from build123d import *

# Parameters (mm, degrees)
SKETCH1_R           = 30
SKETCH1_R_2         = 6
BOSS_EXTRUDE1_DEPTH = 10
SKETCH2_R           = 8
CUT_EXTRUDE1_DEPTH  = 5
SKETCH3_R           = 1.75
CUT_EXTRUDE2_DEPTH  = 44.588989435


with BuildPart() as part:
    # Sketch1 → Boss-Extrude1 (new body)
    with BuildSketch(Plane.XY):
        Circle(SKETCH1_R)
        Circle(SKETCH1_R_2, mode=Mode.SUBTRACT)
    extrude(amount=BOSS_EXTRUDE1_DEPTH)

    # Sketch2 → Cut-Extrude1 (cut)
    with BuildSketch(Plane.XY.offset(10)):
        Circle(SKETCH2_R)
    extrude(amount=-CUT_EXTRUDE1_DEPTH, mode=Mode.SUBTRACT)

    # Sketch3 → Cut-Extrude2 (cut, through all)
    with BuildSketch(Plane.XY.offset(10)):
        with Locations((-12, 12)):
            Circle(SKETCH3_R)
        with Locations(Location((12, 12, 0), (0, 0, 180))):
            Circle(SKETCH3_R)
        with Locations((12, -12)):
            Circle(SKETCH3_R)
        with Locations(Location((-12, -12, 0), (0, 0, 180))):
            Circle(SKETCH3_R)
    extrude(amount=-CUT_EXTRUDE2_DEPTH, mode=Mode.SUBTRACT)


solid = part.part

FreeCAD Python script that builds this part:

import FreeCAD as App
import Part
import Sketcher

V = App.Vector
Q = App.Units.Quantity

doc = App.newDocument("Part")
body = doc.addObject("PartDesign::Body", "Body")

# Sketch on XY plane
sketch1 = body.newObject("Sketcher::SketchObject", "Sketch")
sketch1.AttachmentSupport = (doc.getObject("XY_Plane"), [""])
sketch1.MapMode = "FlatFace"
sketch1.addGeometry([
    Part.Circle(V(0, 0, 0), V(0, 0, 1), 30),
    Part.Circle(V(0, 0, 0), V(0, 0, 1), 6),
], False)
sketch1.addConstraint([
    Sketcher.Constraint("Coincident", 0, 3, -1, 1),
    Sketcher.Constraint("Coincident", 1, 3, -1, 1),
    Sketcher.Constraint("Diameter", 0, Q("60 mm")),
    Sketcher.Constraint("Diameter", 1, Q("12 mm")),
])
pad1 = body.newObject("PartDesign::Pad", "Pad")
pad1.Profile = sketch1
pad1.Length = 10

# Sketch on XY plane
sketch2 = body.newObject("Sketcher::SketchObject", "Sketch001")
sketch2.AttachmentSupport = (doc.getObject("XY_Plane"), [""])
sketch2.MapMode = "FlatFace"
sketch2.AttachmentOffset = App.Placement(V(0, 0, 10), App.Rotation())
sketch2.addGeometry(Part.Circle(V(0, 0, 0), V(0, 0, 1), 8), False)
sketch2.addConstraint([
    Sketcher.Constraint("Coincident", 0, 3, -1, 1),
    Sketcher.Constraint("Diameter", 0, Q("16 mm")),
])
pocket1 = body.newObject("PartDesign::Pocket", "Pocket")
pocket1.Profile = sketch2
pocket1.Length = 5

# Sketch on XY plane
sketch3 = body.newObject("Sketcher::SketchObject", "Sketch002")
sketch3.AttachmentSupport = (doc.getObject("XY_Plane"), [""])
sketch3.MapMode = "FlatFace"
sketch3.AttachmentOffset = App.Placement(V(0, 0, 10), App.Rotation())
sketch3.addGeometry([
    Part.Circle(V(-12, 12, 0), V(0, 0, 1), 1.8),
    Part.Circle(V(12, 12, 0), V(0, 0, 1), 1.8),
    Part.Circle(V(12, -12, 0), V(0, 0, 1), 1.8),
    Part.Circle(V(-12, -12, 0), V(0, 0, 1), 1.8),
], False)
sketch3.addConstraint([
    Sketcher.Constraint("Equal", 0, 1),
    Sketcher.Constraint("Equal", 1, 2),
    Sketcher.Constraint("Equal", 2, 3),
    Sketcher.Constraint("Symmetric", 0, 3, 2, 3, -1, 1),
    Sketcher.Constraint("Symmetric", 1, 3, 3, 3, -1, 1),
    Sketcher.Constraint("Symmetric", 0, 3, 1, 3, -2),
    Sketcher.Constraint("Diameter", 0, Q("3.5 mm")),
    Sketcher.Constraint("DistanceX", 0, 3, -1, 1, Q("12 mm")),
    Sketcher.Constraint("DistanceY", -1, 1, 0, 3, Q("12 mm")),
])
pocket2 = body.newObject("PartDesign::Pocket", "Pocket001")
pocket2.Profile = sketch3
pocket2.Type = "ThroughAll"

doc.recompute()
